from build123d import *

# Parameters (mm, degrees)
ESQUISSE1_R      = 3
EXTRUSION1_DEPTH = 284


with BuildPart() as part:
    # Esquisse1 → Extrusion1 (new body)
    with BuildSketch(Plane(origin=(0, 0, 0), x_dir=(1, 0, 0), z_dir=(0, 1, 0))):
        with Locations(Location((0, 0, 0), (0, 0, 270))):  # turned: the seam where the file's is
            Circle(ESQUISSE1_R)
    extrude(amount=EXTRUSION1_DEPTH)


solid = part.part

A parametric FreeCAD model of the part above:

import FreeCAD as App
import Part
import Sketcher

V = App.Vector

doc = App.newDocument("Part")
body = doc.addObject("PartDesign::Body", "Body")

# Sketch on XZ plane
sketch1 = body.newObject("Sketcher::SketchObject", "Sketch")
sketch1.AttachmentSupport = (doc.getObject("XZ_Plane"), [""])
sketch1.MapMode = "FlatFace"
sketch1.addGeometry(Part.Circle(V(0, 0, 0), V(0, 0, 1), 3), False)
sketch1.addConstraint([
    Sketcher.Constraint("Coincident", 0, 3, -1, 1),
    Sketcher.Constraint("Diameter", 0, 6.0),
])
pad1 = body.newObject("PartDesign::Pad", "Pad")
pad1.Profile = sketch1
pad1.Length = 284
pad1.Reversed = True

doc.recompute()
